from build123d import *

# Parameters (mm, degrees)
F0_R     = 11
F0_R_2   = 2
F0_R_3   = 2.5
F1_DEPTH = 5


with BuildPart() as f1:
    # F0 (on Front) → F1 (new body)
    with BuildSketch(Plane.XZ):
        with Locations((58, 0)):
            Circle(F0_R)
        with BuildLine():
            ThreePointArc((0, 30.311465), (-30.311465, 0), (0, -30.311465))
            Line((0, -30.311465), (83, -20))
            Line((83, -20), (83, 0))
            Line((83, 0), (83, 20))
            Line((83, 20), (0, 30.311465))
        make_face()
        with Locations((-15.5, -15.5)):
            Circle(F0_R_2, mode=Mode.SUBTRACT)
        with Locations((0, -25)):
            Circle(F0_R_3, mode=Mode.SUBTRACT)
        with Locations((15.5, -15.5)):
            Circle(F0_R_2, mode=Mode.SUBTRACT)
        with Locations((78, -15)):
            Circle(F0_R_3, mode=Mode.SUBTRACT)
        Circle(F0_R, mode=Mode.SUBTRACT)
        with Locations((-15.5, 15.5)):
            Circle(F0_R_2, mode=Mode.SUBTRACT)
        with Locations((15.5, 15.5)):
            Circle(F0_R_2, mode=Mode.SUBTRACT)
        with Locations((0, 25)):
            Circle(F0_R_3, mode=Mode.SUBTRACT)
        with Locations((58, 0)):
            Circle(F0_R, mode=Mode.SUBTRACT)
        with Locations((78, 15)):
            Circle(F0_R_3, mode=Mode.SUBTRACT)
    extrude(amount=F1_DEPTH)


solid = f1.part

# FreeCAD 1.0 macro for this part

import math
import FreeCAD as App
import Part
import Sketcher
from FreeCAD import Vector
Q = App.Units.Quantity

doc = App.newDocument("Part")
body = doc.addObject("PartDesign::Body", "Body")

sketch1 = body.newObject("Sketcher::SketchObject", "Sketch")
sketch1.AttachmentSupport = (doc.getObject("XZ_Plane"), [""])
sketch1.MapMode = "FlatFace"
sketch1.addGeometry(Part.ArcOfCircle(Part.Circle(Vector(0, 0, 0), Vector(0, 0, 1), 30.3), math.radians(90), math.radians(270)), False)
sketch1.addGeometry(Part.LineSegment(Vector(0, -30.3, 0), Vector(83, -20, 0)), False)
sketch1.addGeometry(Part.LineSegment(Vector(83, -20, 0), Vector(83, 20, 0)), False)
sketch1.addGeometry(Part.LineSegment(Vector(83, 20, 0), Vector(0, 30.3, 0)), False)
sketch1.addGeometry(Part.Circle(Vector(0, -25, 0), Vector(0, 0, 1), 2.5), False)
sketch1.addGeometry(Part.Circle(Vector(-15.5, -15.5, 0), Vector(0, 0, 1), 2), False)
sketch1.addGeometry(Part.Circle(Vector(15.5, -15.5, 0), Vector(0, 0, 1), 2), False)
sketch1.addGeometry(Part.Circle(Vector(78, -15, 0), Vector(0, 0, 1), 2.5), False)
sketch1.addGeometry(Part.Circle(Vector(0, 0, 0), Vector(0, 0, 1), 11), False)
sketch1.addGeometry(Part.Circle(Vector(-15.5, 15.5, 0), Vector(0, 0, 1), 2), False)
sketch1.addGeometry(Part.Circle(Vector(0, 25, 0), Vector(0, 0, 1), 2.5), False)
sketch1.addGeometry(Part.Circle(Vector(15.5, 15.5, 0), Vector(0, 0, 1), 2), False)
sketch1.addGeometry(Part.Circle(Vector(58, 0, 0), Vector(0, 0, 1), 11), False)
sketch1.addGeometry(Part.Circle(Vector(78, 15, 0), Vector(0, 0, 1), 2.5), False)
sketch1.addConstraint(Sketcher.Constraint("Coincident", 0, 2, 1, 1))
sketch1.addConstraint(Sketcher.Constraint("Coincident", 1, 2, 2, 1))
sketch1.addConstraint(Sketcher.Constraint("Coincident", 2, 2, 3, 1))
sketch1.addConstraint(Sketcher.Constraint("Coincident", 3, 2, 0, 1))
sketch1.addConstraint(Sketcher.Constraint("Vertical", 2))
sketch1.addConstraint(Sketcher.Constraint("Coincident", 0, 3, -1, 1))
sketch1.addConstraint(Sketcher.Constraint("Coincident", 8, 3, -1, 1))
sketch1.addConstraint(Sketcher.Constraint("Equal", 5, 6))
sketch1.addConstraint(Sketcher.Constraint("Equal", 4, 7))
sketch1.addConstraint(Sketcher.Constraint("Equal", 6, 9))
sketch1.addConstraint(Sketcher.Constraint("Equal", 7, 10))
sketch1.addConstraint(Sketcher.Constraint("Equal", 9, 11))
sketch1.addConstraint(Sketcher.Constraint("Equal", 8, 12))
sketch1.addConstraint(Sketcher.Constraint("Equal", 10, 13))
sketch1.addConstraint(Sketcher.Constraint("Symmetric", 6, 3, 9, 3, -1, 1))
sketch1.addConstraint(Sketcher.Constraint("Symmetric", 4, 3, 10, 3, -1, 1))
sketch1.addConstraint(Sketcher.Constraint("Symmetric", 5, 3, 11, 3, -1, 1))
sketch1.addConstraint(Sketcher.Constraint("Symmetric", 5, 3, 6, 3, -2))
sketch1.addConstraint(Sketcher.Constraint("Symmetric", 7, 3, 13, 3, -1))
sketch1.addConstraint(Sketcher.Constraint("PointOnObject", 4, 3, -2))
sketch1.addConstraint(Sketcher.Constraint("PointOnObject", 12, 3, -1))
sketch1.addConstraint(Sketcher.Constraint("PointOnObject", 0, 2, -2))
sketch1.addConstraint(Sketcher.Constraint("PointOnObject", 3, 2, -2))
sketch1.addConstraint(Sketcher.Constraint("Equal", 1, 3))
sketch1.addConstraint(Sketcher.Constraint("Diameter", 4, Q("5 mm")))
sketch1.addConstraint(Sketcher.Constraint("Diameter", 5, Q("4 mm")))
sketch1.addConstraint(Sketcher.Constraint("Diameter", 8, Q("22 mm")))
sketch1.addConstraint(Sketcher.Constraint("DistanceY", 2, 1, 2, 2, Q("40 mm")))
sketch1.addConstraint(Sketcher.Constraint("DistanceY", 4, 3, -1, 1, Q("25 mm")))
sketch1.addConstraint(Sketcher.Constraint("DistanceX", -1, 1, 7, 3, Q("78 mm")))
sketch1.addConstraint(Sketcher.Constraint("DistanceY", 7, 3, -1, 1, Q("15 mm")))
sketch1.addConstraint(Sketcher.Constraint("DistanceX", -1, 1, 12, 3, Q("58 mm")))
sketch1.addConstraint(Sketcher.Constraint("DistanceX", -1, 1, 1, 2, Q("83 mm")))
sketch1.addConstraint(Sketcher.Constraint("DistanceX", 5, 3, 6, 3, Q("31 mm")))
sketch1.addConstraint(Sketcher.Constraint("DistanceY", 5, 3, 9, 3, Q("31 mm")))
sketch1.addConstraint(Sketcher.Constraint("Radius", 0, Q("30.311465 mm")))
pad1 = body.newObject("PartDesign::Pad", "Pad")
pad1.Profile = sketch1
pad1.Length = 5

doc.recompute()
